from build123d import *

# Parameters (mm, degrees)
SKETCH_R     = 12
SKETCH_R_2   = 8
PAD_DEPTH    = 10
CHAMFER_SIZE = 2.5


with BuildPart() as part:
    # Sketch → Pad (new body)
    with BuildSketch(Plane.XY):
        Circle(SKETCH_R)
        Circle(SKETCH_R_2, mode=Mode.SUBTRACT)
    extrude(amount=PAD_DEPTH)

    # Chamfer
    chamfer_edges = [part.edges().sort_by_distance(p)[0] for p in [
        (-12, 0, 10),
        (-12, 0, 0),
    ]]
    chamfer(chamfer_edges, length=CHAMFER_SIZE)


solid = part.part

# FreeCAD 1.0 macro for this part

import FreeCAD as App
import Part
import Sketcher
from FreeCAD import Vector


def edges_at(feature, points):
    """Names of the edges that pass closest to the given points."""
    edges = feature.Shape.Edges
    near = lambda p: min(range(len(edges)), key=lambda i: edges[i].distToShape(Part.Vertex(*p))[0])
    return sorted({f"Edge{near(p) + 1}" for p in points})

doc = App.newDocument("Part")
body = doc.addObject("PartDesign::Body", "Body")

sketch1 = body.newObject("Sketcher::SketchObject", "Sketch")
sketch1.AttachmentSupport = (doc.getObject("XY_Plane"), [""])
sketch1.MapMode = "FlatFace"
sketch1.addGeometry([
    Part.Circle(Vector(0, 0, 0), Vector(0, 0, 1), 12),
    Part.Circle(Vector(0, 0, 0), Vector(0, 0, 1), 8),
], False)
sketch1.addConstraint([
    Sketcher.Constraint("Coincident", 0, 3, -1, 1),
    Sketcher.Constraint("Coincident", 1, 3, -1, 1),
    Sketcher.Constraint("Diameter", 0, 24.0),
    Sketcher.Constraint("Diameter", 1, 16.0),
])
pad1 = body.newObject("PartDesign::Pad", "Pad")
pad1.Profile = sketch1
pad1.Length = 10
doc.recompute()

chamfer = body.newObject("PartDesign::Chamfer", "Chamfer")
chamfer.Base = (pad1, edges_at(pad1, [(-12, 0, 10), (-12, 0, 0)]))
chamfer.Size = 2.5

doc.recompute()
